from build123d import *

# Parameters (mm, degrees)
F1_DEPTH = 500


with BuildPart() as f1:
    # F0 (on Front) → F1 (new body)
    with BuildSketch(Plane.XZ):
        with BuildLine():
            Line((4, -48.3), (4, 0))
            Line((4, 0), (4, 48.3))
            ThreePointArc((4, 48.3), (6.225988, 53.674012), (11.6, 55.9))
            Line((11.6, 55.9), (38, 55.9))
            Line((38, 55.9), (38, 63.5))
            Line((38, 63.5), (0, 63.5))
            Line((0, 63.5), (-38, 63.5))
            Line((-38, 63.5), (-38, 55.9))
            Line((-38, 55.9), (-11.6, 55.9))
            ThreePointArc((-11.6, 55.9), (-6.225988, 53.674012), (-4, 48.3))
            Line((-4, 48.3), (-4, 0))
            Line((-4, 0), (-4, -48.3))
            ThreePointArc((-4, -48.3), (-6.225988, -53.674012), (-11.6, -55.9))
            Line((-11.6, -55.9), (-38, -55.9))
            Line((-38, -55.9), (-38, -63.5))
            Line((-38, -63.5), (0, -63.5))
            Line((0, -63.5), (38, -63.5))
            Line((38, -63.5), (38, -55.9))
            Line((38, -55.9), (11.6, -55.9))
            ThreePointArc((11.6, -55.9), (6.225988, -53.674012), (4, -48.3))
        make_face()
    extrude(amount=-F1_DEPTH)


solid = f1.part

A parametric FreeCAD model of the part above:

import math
import FreeCAD as App
import Part
import Sketcher
Q = App.Units.Quantity

doc = App.newDocument("Part")
body = doc.addObject("PartDesign::Body", "Body")

# Sketch on XZ plane
sketch1 = doc.addObject("Sketcher::SketchObject", "Sketch")
body.addObject(sketch1)
sketch1.AttachmentSupport = (doc.XZ_Plane, [""])
sketch1.MapMode = "FlatFace"
sketch1.addGeometry(Part.LineSegment(App.Vector(4, -48, 0), App.Vector(4, 48, 0)), False)
sketch1.addGeometry(Part.ArcOfCircle(Part.Circle(App.Vector(12, 48, 0), App.Vector(0, 0, 1), 8), math.radians(90), math.radians(180)), False)
sketch1.addGeometry(Part.LineSegment(App.Vector(12, 56, 0), App.Vector(38, 56, 0)), False)
sketch1.addGeometry(Part.LineSegment(App.Vector(38, 56, 0), App.Vector(38, 64, 0)), False)
sketch1.addGeometry(Part.LineSegment(App.Vector(38, 64, 0), App.Vector(-38, 64, 0)), False)
sketch1.addGeometry(Part.LineSegment(App.Vector(-38, 64, 0), App.Vector(-38, 56, 0)), False)
sketch1.addGeometry(Part.LineSegment(App.Vector(-38, 56, 0), App.Vector(-12, 56, 0)), False)
sketch1.addGeometry(Part.ArcOfCircle(Part.Circle(App.Vector(-12, 48, 0), App.Vector(0, 0, 1), 8), math.radians(0), math.radians(90)), False)
sketch1.addGeometry(Part.LineSegment(App.Vector(-4, 48, 0), App.Vector(-4, -48, 0)), False)
sketch1.addGeometry(Part.ArcOfCircle(Part.Circle(App.Vector(-12, -48, 0), App.Vector(0, 0, 1), 8), math.radians(-90), math.radians(0)), False)
sketch1.addGeometry(Part.LineSegment(App.Vector(-12, -56, 0), App.Vector(-38, -56, 0)), False)
sketch1.addGeometry(Part.LineSegment(App.Vector(-38, -56, 0), App.Vector(-38, -64, 0)), False)
sketch1.addGeometry(Part.LineSegment(App.Vector(-38, -64, 0), App.Vector(38, -64, 0)), False)
sketch1.addGeometry(Part.LineSegment(App.Vector(38, -64, 0), App.Vector(38, -56, 0)), False)
sketch1.addGeometry(Part.LineSegment(App.Vector(38, -56, 0), App.Vector(12, -56, 0)), False)
sketch1.addGeometry(Part.ArcOfCircle(Part.Circle(App.Vector(12, -48, 0), App.Vector(0, 0, 1), 8), math.radians(180), math.radians(270)), False)
sketch1.addConstraint(Sketcher.Constraint("Tangent", 0, 2, 1, 2))
sketch1.addConstraint(Sketcher.Constraint("Tangent", 1, 1, 2, 1))
sketch1.addConstraint(Sketcher.Constraint("Coincident", 2, 2, 3, 1))
sketch1.addConstraint(Sketcher.Constraint("Coincident", 3, 2, 4, 1))
sketch1.addConstraint(Sketcher.Constraint("Coincident", 4, 2, 5, 1))
sketch1.addConstraint(Sketcher.Constraint("Coincident", 5, 2, 6, 1))
sketch1.addConstraint(Sketcher.Constraint("Tangent", 6, 2, 7, 2))
sketch1.addConstraint(Sketcher.Constraint("Tangent", 7, 1, 8, 1))
sketch1.addConstraint(Sketcher.Constraint("Tangent", 8, 2, 9, 2))
sketch1.addConstraint(Sketcher.Constraint("Tangent", 9, 1, 10, 1))
sketch1.addConstraint(Sketcher.Constraint("Coincident", 10, 2, 11, 1))
sketch1.addConstraint(Sketcher.Constraint("Coincident", 11, 2, 12, 1))
sketch1.addConstraint(Sketcher.Constraint("Coincident", 12, 2, 13, 1))
sketch1.addConstraint(Sketcher.Constraint("Coincident", 13, 2, 14, 1))
sketch1.addConstraint(Sketcher.Constraint("Tangent", 14, 2, 15, 2))
sketch1.addConstraint(Sketcher.Constraint("Tangent", 15, 1, 0, 1))
sketch1.addConstraint(Sketcher.Constraint("Vertical", 0))
sketch1.addConstraint(Sketcher.Constraint("Horizontal", 2))
sketch1.addConstraint(Sketcher.Constraint("Vertical", 3))
sketch1.addConstraint(Sketcher.Constraint("Horizontal", 4))
sketch1.addConstraint(Sketcher.Constraint("Vertical", 5))
sketch1.addConstraint(Sketcher.Constraint("Horizontal", 6))
sketch1.addConstraint(Sketcher.Constraint("Vertical", 8))
sketch1.addConstraint(Sketcher.Constraint("Horizontal", 10))
sketch1.addConstraint(Sketcher.Constraint("Vertical", 11))
sketch1.addConstraint(Sketcher.Constraint("Horizontal", 12))
sketch1.addConstraint(Sketcher.Constraint("Vertical", 13))
sketch1.addConstraint(Sketcher.Constraint("Horizontal", 14))
sketch1.addConstraint(Sketcher.Constraint("Equal", 1, 7))
sketch1.addConstraint(Sketcher.Constraint("Equal", 7, 9))
sketch1.addConstraint(Sketcher.Constraint("Equal", 9, 15))
sketch1.addConstraint(Sketcher.Constraint("Symmetric", 1, 3, 9, 3, -1, 1))
sketch1.addConstraint(Sketcher.Constraint("Symmetric", 3, 2, 11, 2, -1, 1))
sketch1.addConstraint(Sketcher.Constraint("Symmetric", 5, 2, 13, 2, -1, 1))
sketch1.addConstraint(Sketcher.Constraint("Symmetric", 2, 2, 5, 2, -2))
sketch1.addConstraint(Sketcher.Constraint("Radius", 1, Q("7.599998 mm")))
sketch1.addConstraint(Sketcher.Constraint("DistanceX", 4, 2, 4, 1, Q("76 mm")))
sketch1.addConstraint(Sketcher.Constraint("DistanceX", 2, 1, 2, 2, Q("26.4 mm")))
sketch1.addConstraint(Sketcher.Constraint("DistanceY", 0, 1, 0, 2, Q("96.6 mm")))
sketch1.addConstraint(Sketcher.Constraint("DistanceY", 3, 1, 3, 2, Q("7.6 mm")))
pad1 = doc.addObject("PartDesign::Pad", "Pad")
body.addObject(pad1)
pad1.Profile = sketch1
pad1.Length = 500
pad1.Reversed = True

doc.recompute()
